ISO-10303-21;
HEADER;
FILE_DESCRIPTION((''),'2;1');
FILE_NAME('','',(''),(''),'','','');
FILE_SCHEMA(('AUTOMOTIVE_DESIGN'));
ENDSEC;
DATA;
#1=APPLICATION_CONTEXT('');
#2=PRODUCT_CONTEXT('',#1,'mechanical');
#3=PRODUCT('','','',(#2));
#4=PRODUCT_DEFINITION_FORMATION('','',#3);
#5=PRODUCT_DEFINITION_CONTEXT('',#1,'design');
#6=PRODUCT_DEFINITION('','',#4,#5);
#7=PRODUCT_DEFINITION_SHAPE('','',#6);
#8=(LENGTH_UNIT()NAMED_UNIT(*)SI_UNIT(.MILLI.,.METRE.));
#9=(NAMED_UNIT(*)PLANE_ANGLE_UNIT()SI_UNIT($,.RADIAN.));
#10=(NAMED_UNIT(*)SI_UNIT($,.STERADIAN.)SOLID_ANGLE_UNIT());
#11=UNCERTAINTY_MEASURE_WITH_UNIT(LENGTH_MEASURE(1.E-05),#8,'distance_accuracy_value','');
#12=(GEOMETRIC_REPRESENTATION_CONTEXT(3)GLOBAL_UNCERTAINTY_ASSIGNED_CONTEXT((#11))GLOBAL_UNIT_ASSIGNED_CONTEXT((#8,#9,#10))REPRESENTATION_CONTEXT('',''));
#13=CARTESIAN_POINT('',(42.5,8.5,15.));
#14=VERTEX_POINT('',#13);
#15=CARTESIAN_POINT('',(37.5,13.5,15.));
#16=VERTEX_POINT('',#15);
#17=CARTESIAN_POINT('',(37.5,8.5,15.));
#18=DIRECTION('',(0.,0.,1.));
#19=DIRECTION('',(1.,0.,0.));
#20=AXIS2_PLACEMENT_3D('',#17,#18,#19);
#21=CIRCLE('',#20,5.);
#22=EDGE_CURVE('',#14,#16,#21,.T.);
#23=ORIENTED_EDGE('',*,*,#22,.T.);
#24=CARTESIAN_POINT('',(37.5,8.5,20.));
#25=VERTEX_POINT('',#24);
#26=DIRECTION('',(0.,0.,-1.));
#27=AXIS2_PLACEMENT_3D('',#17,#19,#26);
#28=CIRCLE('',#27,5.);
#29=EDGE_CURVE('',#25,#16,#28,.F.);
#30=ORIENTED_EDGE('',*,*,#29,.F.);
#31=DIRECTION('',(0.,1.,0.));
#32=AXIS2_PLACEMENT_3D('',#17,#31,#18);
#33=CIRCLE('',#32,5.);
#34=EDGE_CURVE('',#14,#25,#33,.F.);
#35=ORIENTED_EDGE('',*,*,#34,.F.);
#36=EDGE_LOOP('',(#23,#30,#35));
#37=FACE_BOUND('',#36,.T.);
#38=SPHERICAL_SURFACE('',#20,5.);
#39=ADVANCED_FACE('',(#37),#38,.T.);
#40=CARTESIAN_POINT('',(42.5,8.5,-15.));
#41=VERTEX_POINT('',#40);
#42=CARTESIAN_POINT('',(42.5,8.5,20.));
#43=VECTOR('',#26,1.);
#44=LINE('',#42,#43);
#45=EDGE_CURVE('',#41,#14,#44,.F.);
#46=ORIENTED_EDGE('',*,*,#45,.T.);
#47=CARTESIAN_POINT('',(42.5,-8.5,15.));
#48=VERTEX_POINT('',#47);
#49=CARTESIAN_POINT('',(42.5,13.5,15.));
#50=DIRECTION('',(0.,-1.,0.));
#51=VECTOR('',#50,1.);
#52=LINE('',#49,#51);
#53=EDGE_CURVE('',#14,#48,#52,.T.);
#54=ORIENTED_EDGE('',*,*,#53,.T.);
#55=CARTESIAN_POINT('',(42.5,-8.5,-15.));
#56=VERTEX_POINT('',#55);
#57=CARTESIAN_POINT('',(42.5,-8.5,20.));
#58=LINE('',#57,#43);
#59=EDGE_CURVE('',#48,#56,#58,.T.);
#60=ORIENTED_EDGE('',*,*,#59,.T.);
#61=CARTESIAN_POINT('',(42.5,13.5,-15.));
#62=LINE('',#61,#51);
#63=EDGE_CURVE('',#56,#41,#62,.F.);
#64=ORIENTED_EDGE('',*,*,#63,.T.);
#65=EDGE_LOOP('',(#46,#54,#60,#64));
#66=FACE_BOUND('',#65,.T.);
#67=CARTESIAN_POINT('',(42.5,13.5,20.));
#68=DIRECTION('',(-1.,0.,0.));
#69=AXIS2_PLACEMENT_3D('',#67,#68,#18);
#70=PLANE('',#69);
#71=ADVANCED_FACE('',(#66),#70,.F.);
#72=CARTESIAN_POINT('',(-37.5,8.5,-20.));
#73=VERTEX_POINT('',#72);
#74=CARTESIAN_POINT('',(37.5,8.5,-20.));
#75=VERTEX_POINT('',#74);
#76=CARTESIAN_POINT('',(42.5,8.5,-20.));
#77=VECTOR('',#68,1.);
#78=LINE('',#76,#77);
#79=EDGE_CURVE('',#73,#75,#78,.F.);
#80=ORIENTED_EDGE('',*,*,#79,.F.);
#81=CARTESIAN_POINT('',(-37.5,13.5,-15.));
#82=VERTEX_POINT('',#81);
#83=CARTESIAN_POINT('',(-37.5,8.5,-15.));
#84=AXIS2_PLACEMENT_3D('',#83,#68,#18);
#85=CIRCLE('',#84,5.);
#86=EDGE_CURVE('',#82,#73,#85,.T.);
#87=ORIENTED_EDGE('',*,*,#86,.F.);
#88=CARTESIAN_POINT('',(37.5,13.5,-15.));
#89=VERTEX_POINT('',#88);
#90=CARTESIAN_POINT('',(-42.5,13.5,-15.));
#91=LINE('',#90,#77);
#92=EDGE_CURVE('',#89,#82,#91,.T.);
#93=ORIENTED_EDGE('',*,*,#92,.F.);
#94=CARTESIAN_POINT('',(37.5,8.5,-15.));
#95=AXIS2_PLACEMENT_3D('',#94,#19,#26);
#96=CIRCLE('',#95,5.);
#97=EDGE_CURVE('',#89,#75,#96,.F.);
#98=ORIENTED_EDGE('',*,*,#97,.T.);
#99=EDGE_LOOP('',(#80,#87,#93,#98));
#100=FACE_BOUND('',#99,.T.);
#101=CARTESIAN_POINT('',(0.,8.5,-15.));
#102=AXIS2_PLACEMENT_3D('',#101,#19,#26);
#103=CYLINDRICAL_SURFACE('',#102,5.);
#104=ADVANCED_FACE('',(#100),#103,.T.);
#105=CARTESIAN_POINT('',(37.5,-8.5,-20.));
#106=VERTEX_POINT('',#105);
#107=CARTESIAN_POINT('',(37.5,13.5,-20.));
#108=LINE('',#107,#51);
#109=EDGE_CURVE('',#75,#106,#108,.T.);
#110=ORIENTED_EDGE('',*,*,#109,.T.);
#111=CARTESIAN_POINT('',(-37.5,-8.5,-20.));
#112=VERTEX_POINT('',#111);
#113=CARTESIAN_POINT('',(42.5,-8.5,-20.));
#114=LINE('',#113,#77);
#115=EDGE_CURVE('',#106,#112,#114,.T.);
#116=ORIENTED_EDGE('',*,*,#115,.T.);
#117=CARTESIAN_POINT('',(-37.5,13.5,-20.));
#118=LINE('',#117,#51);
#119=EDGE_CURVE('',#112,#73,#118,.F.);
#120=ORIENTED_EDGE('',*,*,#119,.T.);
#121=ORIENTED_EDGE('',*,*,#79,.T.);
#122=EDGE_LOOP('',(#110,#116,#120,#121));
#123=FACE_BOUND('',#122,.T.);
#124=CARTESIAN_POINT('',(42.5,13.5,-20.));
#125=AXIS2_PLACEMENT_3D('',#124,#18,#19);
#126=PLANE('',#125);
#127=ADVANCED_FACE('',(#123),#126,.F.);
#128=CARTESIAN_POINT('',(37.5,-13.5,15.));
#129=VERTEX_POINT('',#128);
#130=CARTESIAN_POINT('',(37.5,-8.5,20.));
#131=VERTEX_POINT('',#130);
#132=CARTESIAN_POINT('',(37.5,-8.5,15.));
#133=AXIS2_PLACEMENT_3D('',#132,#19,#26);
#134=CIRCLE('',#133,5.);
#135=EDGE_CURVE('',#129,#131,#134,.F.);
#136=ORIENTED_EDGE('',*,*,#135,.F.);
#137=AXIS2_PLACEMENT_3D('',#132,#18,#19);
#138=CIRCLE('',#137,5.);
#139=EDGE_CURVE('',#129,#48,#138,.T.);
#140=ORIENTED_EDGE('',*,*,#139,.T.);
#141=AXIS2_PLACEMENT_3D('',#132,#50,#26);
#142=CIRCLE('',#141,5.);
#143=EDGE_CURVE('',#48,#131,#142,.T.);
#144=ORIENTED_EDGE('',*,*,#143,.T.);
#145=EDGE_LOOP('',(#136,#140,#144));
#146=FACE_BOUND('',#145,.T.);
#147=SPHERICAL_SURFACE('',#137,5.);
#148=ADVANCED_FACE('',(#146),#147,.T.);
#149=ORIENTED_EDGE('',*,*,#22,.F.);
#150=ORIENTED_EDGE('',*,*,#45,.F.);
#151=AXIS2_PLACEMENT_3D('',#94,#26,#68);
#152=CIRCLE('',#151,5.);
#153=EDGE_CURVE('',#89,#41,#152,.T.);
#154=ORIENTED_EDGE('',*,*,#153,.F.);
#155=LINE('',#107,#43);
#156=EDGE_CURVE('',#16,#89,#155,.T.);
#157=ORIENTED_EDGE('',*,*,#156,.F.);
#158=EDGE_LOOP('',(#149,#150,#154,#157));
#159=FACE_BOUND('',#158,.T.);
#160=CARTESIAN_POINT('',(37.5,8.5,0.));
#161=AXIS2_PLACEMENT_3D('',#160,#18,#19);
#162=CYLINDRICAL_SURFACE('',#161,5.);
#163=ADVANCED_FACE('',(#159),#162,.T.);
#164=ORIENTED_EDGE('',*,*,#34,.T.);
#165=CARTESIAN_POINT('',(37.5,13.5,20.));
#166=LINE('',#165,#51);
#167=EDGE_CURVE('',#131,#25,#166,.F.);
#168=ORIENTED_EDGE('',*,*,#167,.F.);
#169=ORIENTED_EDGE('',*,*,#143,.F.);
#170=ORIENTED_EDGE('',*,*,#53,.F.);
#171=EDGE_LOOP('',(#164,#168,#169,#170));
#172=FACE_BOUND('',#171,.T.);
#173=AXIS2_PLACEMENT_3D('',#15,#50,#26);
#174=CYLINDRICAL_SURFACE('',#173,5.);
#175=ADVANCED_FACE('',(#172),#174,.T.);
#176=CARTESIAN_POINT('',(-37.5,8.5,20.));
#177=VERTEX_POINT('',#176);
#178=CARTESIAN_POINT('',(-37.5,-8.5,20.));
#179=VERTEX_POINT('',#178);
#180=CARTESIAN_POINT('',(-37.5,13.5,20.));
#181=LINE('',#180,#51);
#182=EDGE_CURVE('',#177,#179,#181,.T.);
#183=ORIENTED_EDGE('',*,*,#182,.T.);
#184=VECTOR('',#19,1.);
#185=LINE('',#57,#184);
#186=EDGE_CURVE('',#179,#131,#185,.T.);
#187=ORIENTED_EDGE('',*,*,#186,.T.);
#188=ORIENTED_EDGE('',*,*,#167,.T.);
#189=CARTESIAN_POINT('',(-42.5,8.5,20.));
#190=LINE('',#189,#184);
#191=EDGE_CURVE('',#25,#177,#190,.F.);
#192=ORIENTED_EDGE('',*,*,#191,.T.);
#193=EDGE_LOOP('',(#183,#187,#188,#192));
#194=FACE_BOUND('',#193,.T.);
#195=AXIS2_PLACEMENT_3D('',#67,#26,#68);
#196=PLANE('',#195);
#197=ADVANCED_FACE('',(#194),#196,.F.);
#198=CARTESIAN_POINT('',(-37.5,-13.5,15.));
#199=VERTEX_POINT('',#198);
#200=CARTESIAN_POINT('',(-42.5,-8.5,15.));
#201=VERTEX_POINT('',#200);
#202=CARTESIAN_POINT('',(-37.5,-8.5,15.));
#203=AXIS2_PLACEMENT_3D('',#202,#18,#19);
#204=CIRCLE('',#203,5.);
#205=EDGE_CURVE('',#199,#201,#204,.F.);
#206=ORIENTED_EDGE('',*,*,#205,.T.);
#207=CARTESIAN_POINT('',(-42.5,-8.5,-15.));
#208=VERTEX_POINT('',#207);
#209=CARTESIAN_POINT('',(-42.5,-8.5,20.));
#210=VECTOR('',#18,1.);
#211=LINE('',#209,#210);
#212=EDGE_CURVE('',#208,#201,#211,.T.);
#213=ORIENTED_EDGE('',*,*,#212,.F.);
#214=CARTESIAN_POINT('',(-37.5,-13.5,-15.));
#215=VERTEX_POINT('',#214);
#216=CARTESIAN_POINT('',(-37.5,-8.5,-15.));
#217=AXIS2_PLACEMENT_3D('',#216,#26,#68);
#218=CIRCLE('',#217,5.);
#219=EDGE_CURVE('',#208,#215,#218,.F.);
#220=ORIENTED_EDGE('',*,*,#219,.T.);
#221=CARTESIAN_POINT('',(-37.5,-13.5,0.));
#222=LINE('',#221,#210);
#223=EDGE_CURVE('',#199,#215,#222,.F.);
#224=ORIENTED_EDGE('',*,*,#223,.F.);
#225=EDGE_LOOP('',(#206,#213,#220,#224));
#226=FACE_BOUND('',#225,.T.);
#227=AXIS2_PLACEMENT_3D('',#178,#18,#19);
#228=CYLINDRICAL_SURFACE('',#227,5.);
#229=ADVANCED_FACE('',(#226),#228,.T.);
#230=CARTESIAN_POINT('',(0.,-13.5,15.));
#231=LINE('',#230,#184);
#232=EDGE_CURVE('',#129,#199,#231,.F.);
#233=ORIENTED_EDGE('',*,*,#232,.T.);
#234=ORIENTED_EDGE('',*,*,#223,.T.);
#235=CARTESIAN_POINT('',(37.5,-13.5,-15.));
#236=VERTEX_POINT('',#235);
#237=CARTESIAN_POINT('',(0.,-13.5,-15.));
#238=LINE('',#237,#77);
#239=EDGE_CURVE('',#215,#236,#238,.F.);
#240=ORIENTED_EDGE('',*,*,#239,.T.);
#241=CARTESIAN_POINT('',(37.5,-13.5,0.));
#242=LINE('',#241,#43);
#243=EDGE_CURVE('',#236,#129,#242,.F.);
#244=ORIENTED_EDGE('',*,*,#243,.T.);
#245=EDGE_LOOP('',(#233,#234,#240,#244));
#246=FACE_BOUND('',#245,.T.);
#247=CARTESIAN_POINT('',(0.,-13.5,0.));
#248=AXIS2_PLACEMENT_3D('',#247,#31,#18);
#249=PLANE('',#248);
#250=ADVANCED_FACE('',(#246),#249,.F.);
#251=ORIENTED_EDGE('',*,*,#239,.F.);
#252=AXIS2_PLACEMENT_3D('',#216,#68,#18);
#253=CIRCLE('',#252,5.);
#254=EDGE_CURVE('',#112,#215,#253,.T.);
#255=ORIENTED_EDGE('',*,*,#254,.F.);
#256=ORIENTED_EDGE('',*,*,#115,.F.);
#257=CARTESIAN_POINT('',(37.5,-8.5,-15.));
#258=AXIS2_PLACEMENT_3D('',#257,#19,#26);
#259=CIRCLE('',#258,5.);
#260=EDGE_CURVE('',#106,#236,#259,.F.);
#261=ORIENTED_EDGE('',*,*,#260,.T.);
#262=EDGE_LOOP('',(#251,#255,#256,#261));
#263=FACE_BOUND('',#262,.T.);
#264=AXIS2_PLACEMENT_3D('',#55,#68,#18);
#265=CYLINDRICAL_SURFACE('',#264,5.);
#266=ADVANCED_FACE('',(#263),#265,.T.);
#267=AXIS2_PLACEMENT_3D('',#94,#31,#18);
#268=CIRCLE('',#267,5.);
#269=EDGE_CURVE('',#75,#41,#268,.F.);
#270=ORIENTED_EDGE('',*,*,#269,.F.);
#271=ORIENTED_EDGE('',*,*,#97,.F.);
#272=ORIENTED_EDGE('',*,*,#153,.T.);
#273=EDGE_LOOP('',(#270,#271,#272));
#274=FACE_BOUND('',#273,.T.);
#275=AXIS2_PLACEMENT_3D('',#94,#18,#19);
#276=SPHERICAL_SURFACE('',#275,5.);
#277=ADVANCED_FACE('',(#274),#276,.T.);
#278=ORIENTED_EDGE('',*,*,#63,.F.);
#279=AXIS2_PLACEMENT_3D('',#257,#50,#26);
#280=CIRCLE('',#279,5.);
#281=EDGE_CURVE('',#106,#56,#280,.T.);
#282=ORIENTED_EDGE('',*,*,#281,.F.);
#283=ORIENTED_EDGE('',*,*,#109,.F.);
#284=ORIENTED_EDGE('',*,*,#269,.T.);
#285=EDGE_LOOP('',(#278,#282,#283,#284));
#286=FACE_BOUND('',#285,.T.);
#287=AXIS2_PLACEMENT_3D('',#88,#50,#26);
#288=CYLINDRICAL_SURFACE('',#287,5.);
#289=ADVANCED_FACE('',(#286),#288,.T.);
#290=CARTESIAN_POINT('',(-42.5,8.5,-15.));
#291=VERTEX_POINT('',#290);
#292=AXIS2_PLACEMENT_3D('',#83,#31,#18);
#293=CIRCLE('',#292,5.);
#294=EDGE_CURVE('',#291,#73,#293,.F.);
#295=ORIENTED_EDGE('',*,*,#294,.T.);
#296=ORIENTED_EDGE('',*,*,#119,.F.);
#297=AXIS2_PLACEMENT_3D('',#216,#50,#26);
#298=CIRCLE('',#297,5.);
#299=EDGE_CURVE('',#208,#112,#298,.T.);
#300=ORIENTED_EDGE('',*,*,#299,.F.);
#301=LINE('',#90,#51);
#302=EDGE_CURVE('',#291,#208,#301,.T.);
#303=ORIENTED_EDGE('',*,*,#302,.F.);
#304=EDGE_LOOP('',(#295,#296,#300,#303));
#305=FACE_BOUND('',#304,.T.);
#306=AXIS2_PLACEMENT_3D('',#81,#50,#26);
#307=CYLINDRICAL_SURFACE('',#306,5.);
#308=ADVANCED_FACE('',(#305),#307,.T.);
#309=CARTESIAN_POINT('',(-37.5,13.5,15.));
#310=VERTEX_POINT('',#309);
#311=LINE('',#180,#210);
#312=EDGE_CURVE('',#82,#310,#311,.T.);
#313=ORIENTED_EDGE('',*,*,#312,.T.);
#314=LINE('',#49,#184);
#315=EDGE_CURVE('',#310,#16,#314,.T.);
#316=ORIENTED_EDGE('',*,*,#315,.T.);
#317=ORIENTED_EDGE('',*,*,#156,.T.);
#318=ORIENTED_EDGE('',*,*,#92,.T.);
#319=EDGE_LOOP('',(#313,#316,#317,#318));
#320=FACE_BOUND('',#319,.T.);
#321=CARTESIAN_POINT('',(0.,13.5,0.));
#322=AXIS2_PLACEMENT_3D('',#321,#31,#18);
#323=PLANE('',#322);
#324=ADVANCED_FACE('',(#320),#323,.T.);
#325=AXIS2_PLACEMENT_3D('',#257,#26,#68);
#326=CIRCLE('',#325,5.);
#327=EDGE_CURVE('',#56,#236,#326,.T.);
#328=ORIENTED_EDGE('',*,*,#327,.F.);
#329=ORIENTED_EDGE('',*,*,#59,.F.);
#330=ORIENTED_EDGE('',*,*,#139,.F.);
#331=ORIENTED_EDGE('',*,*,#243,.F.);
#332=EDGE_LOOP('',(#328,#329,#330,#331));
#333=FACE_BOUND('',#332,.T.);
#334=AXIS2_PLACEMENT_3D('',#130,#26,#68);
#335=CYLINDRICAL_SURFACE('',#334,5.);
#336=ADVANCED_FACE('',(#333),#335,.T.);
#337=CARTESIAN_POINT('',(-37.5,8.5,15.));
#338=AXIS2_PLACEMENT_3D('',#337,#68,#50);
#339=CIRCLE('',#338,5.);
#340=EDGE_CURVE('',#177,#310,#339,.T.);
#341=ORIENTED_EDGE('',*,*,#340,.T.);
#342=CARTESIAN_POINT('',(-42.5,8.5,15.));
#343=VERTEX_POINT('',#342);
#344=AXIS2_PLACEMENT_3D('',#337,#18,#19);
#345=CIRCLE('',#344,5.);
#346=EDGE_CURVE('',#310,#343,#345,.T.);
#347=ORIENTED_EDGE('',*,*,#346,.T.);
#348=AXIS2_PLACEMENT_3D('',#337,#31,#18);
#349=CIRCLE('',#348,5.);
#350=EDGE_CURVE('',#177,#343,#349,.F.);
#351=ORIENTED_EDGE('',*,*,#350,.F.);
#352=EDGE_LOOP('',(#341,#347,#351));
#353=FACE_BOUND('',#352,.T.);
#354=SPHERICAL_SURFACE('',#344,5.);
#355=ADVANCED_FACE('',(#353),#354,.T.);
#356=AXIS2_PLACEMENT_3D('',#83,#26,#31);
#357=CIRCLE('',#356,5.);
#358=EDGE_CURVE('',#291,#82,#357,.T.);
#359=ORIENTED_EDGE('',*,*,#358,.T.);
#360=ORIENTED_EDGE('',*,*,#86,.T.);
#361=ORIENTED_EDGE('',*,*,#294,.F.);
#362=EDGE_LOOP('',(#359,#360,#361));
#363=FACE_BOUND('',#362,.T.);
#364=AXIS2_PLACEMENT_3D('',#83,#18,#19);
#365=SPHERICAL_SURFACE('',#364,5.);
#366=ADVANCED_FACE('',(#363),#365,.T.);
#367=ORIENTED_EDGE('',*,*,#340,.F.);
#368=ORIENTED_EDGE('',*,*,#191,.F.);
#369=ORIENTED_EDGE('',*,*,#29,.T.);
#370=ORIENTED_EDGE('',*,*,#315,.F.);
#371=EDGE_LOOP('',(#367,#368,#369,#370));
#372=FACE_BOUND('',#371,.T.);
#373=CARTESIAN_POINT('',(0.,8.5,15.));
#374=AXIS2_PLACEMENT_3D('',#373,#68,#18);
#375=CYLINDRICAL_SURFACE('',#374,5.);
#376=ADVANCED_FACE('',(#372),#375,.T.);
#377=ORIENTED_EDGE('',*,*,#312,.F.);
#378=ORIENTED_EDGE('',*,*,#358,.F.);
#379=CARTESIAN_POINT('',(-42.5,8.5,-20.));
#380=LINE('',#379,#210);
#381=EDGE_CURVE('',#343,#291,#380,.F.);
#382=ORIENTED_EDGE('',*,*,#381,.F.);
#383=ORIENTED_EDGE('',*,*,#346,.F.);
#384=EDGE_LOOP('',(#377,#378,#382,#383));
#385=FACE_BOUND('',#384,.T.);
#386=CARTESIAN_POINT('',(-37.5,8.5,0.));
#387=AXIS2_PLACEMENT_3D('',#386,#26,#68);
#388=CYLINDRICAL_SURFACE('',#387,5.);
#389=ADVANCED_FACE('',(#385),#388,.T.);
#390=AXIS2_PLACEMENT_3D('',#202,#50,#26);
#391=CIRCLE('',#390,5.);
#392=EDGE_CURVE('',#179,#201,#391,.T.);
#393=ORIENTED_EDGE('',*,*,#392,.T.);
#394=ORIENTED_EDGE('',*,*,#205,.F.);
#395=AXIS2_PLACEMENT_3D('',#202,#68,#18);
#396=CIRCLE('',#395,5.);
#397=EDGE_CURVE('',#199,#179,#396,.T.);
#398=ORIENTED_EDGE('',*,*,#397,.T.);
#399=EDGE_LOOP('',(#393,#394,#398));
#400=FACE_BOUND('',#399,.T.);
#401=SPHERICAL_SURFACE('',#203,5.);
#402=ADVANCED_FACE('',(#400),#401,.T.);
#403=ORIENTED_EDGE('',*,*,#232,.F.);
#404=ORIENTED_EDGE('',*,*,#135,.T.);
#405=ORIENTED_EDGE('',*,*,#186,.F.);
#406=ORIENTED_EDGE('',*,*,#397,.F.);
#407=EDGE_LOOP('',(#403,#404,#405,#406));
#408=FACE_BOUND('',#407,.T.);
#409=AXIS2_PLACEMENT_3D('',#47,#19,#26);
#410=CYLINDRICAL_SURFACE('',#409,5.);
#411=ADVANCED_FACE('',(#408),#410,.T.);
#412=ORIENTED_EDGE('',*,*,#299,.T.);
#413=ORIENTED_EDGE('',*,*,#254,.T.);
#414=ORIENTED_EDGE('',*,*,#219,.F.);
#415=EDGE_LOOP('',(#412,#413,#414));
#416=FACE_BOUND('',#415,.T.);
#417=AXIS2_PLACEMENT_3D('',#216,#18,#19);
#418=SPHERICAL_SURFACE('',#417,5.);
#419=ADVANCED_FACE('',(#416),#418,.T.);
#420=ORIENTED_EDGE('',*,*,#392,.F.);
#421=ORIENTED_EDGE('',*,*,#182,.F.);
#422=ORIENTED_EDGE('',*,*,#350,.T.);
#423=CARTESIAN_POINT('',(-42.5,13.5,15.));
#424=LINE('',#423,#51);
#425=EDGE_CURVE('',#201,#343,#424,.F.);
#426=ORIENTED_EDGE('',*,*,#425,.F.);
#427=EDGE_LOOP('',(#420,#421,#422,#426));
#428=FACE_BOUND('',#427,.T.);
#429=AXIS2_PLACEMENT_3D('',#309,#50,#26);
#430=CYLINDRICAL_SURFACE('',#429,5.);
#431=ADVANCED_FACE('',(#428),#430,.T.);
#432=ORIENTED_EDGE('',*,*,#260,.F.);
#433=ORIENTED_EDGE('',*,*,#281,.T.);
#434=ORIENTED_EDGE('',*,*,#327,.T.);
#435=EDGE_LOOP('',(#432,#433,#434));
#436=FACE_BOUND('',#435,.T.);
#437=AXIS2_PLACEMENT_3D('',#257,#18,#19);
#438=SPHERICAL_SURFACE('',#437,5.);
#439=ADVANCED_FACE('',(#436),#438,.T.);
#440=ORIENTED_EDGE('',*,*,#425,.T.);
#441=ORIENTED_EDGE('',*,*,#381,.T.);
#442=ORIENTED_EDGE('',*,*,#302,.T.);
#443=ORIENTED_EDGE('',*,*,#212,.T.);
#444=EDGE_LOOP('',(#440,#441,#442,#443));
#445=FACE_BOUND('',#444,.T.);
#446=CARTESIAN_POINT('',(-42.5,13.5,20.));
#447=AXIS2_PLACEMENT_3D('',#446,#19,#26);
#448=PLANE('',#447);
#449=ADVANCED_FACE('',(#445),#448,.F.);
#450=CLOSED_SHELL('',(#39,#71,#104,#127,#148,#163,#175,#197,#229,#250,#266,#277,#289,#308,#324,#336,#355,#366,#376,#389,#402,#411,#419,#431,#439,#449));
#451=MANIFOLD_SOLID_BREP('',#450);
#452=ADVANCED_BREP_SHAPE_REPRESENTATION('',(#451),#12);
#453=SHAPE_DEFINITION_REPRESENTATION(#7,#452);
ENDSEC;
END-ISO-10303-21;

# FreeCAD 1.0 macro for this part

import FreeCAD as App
import Part
import Sketcher
from FreeCAD import Vector

doc = App.newDocument("Part")
body = doc.addObject("PartDesign::Body", "Body")

sketch1 = body.newObject("Sketcher::SketchObject", "Sketch")
sketch1.AttachmentSupport = (doc.getObject("XZ_Plane"), [""])
sketch1.MapMode = "FlatFace"
sketch1.addGeometry([
    Part.LineSegment(Vector(-42, -20, 0), Vector(-42, 20, 0)),
    Part.LineSegment(Vector(-42, 20, 0), Vector(42, 20, 0)),
    Part.LineSegment(Vector(42, 20, 0), Vector(42, -20, 0)),
    Part.LineSegment(Vector(42, -20, 0), Vector(-42, -20, 0)),
], False)
sketch1.addConstraint([
    Sketcher.Constraint("Coincident", 0, 2, 1, 1),
    Sketcher.Constraint("Coincident", 1, 2, 2, 1),
    Sketcher.Constraint("Coincident", 2, 2, 3, 1),
    Sketcher.Constraint("Coincident", 3, 2, 0, 1),
    Sketcher.Constraint("Vertical", 0),
    Sketcher.Constraint("Horizontal", 1),
    Sketcher.Constraint("Vertical", 2),
    Sketcher.Constraint("Horizontal", 3),
    Sketcher.Constraint("Symmetric", 0, 2, 2, 2, -1, 1),
    Sketcher.Constraint("DistanceX", 1, 1, 1, 2, 85.0),
    Sketcher.Constraint("DistanceY", 0, 1, 0, 2, 40.0),
])
pad1 = body.newObject("PartDesign::Pad", "Pad")
pad1.Profile = sketch1
pad1.Length = 27
pad1.Midplane = True
doc.recompute()

fillet = body.newObject("PartDesign::Fillet", "Fillet")
fillet.Base = (pad1, ["Edge1"])
fillet.UseAllEdges = True
fillet.Radius = 5

doc.recompute()
